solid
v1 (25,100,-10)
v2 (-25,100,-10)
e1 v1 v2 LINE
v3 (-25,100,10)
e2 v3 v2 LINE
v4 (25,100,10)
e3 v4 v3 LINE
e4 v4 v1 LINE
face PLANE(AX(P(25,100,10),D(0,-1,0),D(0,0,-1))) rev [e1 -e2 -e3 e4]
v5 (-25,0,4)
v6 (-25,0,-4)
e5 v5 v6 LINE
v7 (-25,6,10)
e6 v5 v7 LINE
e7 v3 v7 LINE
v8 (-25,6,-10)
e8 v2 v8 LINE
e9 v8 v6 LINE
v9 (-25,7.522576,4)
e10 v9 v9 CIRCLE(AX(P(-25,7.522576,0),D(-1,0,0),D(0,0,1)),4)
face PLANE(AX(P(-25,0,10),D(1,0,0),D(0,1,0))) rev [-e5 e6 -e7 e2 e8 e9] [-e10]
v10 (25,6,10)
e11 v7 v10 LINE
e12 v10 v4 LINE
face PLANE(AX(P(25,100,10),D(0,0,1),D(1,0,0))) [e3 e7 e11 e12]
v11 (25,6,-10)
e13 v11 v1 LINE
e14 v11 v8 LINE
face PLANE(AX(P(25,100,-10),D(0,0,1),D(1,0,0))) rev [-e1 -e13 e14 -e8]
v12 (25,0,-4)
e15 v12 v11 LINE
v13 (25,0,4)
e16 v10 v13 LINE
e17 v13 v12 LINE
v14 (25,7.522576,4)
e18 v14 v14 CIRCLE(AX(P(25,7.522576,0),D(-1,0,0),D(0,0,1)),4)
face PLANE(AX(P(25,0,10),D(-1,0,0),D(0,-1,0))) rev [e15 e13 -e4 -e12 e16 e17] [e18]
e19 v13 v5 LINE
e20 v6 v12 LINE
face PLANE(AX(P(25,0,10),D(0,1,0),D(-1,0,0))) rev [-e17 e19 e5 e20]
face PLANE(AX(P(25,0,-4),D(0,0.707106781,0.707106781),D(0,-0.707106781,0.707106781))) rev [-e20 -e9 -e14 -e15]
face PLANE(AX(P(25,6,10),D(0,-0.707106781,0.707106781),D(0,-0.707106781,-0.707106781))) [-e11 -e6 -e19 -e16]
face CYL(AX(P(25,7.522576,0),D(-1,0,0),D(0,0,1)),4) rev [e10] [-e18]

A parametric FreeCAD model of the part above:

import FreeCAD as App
import Part
import Sketcher
from FreeCAD import Vector
Q = App.Units.Quantity


def edges_at(feature, points):
    """Names of the edges that pass closest to the given points."""
    edges = feature.Shape.Edges
    near = lambda p: min(range(len(edges)), key=lambda i: edges[i].distToShape(Part.Vertex(*p))[0])
    return sorted({f"Edge{near(p) + 1}" for p in points})


def add_polygon(sketch, points):
    """Adds a closed chain of lines whose ends are joined by coincident constraints."""
    first, n = sketch.GeometryCount, len(points)
    for a, b in zip(points, points[1:] + points[:1]):
        sketch.addGeometry(Part.LineSegment(App.Vector(*a, 0), App.Vector(*b, 0)), False)
    for i in range(n):
        sketch.addConstraint(Sketcher.Constraint("Coincident", first + i, 2, first + (i + 1) % n, 1))

doc = App.newDocument("Part")
params = doc.addObject("Spreadsheet::Sheet", "Params")
for row, (alias, value) in enumerate([
    ("sketch1_width", "50 mm"),
    ("sketch1_height", "100 mm"),
    ("pad1_length", "20 mm"),
    ("sketch2_diameter", "8 mm"),
    ("chamfer_size", "6 mm"),
], start=1):
    params.set(f"A{row}", alias)
    params.set(f"B{row}", "=" + value)
    params.setAlias(f"B{row}", alias)

body = doc.addObject("PartDesign::Body", "Body")

# Sketch on XY plane
sketch1 = body.newObject("Sketcher::SketchObject", "Sketch")
sketch1.AttachmentSupport = (doc.getObject("XY_Plane"), [""])
sketch1.MapMode = "FlatFace"
add_polygon(sketch1, [(-25, 100), (-25, 0), (25, 0), (25, 100)])  # lines 0-3
sketch1.addConstraint([
    Sketcher.Constraint("Vertical", 0),
    Sketcher.Constraint("Horizontal", 1),
    Sketcher.Constraint("Vertical", 2),
    Sketcher.Constraint("Horizontal", 3),
    Sketcher.Constraint("Symmetric", 0, 2, 1, 2, -1, 1),
    Sketcher.Constraint("DistanceX", 1, 1, 1, 2, Q("50 mm")),
    Sketcher.Constraint("DistanceY", 0, 2, 0, 1, Q("100 mm")),
])
sketch1.setExpression("Constraints[9]", "Params.sketch1_width")
sketch1.setExpression("Constraints[10]", "Params.sketch1_height")
pad1 = body.newObject("PartDesign::Pad", "Pad")
pad1.Profile = sketch1
pad1.setExpression("Length", "Params.pad1_length")
pad1.Midplane = True

# Sketch on YZ plane
sketch2 = body.newObject("Sketcher::SketchObject", "Sketch001")
sketch2.AttachmentSupport = (doc.getObject("YZ_Plane"), [""])
sketch2.MapMode = "FlatFace"
sketch2.AttachmentOffset = App.Placement(Vector(0, 0, -25), App.Rotation())
sketch2.addGeometry(Part.Circle(Vector(7.5, 0, 0), Vector(0, 0, 1), 4), False)
sketch2.addConstraint([
    Sketcher.Constraint("PointOnObject", 0, 3, -1),
    Sketcher.Constraint("Diameter", 0, Q("8 mm")),
    Sketcher.Constraint("DistanceX", -1, 1, 0, 3, Q("7.522576 mm")),
])
sketch2.setExpression("Constraints[1]", "Params.sketch2_diameter")
pocket1 = body.newObject("PartDesign::Pocket", "Pocket")
pocket1.Profile = sketch2
pocket1.Type = "ThroughAll"
pocket1.Reversed = True
doc.recompute()

chamfer = body.newObject("PartDesign::Chamfer", "Chamfer")
chamfer.Base = (pocket1, edges_at(pocket1, [(0, 0, 10), (0, 0, -10)]))
chamfer.setExpression("Size", "Params.chamfer_size")

doc.recompute()
